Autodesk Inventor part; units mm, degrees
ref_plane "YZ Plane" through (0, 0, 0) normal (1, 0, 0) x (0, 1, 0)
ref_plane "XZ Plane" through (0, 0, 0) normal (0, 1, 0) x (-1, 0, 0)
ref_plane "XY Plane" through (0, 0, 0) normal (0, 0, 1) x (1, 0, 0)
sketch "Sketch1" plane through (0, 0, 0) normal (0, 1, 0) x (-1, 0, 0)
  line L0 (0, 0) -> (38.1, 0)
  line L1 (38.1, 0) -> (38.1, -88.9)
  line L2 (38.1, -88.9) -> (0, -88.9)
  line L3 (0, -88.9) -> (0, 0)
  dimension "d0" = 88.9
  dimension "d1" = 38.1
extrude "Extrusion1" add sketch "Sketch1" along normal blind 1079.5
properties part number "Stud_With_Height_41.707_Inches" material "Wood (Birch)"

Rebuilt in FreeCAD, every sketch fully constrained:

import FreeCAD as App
import Part
import Sketcher
from FreeCAD import Vector
Q = App.Units.Quantity

doc = App.newDocument("Part")
params = doc.addObject("Spreadsheet::Sheet", "Params")
for row, (alias, value) in enumerate([
    ("sketch1_width", "1.5 in"),
    ("sketch1_height", "3.5 in"),
    ("pad1_length", "42.5 in"),
], start=1):
    params.set(f"A{row}", alias)
    params.set(f"B{row}", "=" + value)
    params.setAlias(f"B{row}", alias)

body = doc.addObject("PartDesign::Body", "Body")

# Sketch on XZ plane
sketch1 = body.newObject("Sketcher::SketchObject", "Sketch")
sketch1.AttachmentSupport = (doc.getObject("XZ_Plane"), [""])
sketch1.MapMode = "FlatFace"
sketch1.addGeometry([
    Part.LineSegment(Vector(-38, 0, 0), Vector(0, 0, 0)),
    Part.LineSegment(Vector(0, 0, 0), Vector(0, -89, 0)),
    Part.LineSegment(Vector(0, -89, 0), Vector(-38, -89, 0)),
    Part.LineSegment(Vector(-38, -89, 0), Vector(-38, 0, 0)),
], False)
sketch1.addConstraint([
    Sketcher.Constraint("Coincident", 0, 2, 1, 1),
    Sketcher.Constraint("Coincident", 1, 2, 2, 1),
    Sketcher.Constraint("Coincident", 2, 2, 3, 1),
    Sketcher.Constraint("Coincident", 3, 2, 0, 1),
    Sketcher.Constraint("Horizontal", 0),
    Sketcher.Constraint("Vertical", 1),
    Sketcher.Constraint("Horizontal", 2),
    Sketcher.Constraint("Vertical", 3),
    Sketcher.Constraint("Coincident", 0, 2, -1, 1),
    Sketcher.Constraint("DistanceX", 0, 1, 0, 2, Q("1.5 in")),
    Sketcher.Constraint("DistanceY", 1, 2, 1, 1, Q("3.5 in")),
])
sketch1.setExpression("Constraints[9]", "Params.sketch1_width")
sketch1.setExpression("Constraints[10]", "Params.sketch1_height")
pad1 = body.newObject("PartDesign::Pad", "Pad")
pad1.Profile = sketch1
pad1.setExpression("Length", "Params.pad1_length")
pad1.Reversed = True

doc.recompute()
